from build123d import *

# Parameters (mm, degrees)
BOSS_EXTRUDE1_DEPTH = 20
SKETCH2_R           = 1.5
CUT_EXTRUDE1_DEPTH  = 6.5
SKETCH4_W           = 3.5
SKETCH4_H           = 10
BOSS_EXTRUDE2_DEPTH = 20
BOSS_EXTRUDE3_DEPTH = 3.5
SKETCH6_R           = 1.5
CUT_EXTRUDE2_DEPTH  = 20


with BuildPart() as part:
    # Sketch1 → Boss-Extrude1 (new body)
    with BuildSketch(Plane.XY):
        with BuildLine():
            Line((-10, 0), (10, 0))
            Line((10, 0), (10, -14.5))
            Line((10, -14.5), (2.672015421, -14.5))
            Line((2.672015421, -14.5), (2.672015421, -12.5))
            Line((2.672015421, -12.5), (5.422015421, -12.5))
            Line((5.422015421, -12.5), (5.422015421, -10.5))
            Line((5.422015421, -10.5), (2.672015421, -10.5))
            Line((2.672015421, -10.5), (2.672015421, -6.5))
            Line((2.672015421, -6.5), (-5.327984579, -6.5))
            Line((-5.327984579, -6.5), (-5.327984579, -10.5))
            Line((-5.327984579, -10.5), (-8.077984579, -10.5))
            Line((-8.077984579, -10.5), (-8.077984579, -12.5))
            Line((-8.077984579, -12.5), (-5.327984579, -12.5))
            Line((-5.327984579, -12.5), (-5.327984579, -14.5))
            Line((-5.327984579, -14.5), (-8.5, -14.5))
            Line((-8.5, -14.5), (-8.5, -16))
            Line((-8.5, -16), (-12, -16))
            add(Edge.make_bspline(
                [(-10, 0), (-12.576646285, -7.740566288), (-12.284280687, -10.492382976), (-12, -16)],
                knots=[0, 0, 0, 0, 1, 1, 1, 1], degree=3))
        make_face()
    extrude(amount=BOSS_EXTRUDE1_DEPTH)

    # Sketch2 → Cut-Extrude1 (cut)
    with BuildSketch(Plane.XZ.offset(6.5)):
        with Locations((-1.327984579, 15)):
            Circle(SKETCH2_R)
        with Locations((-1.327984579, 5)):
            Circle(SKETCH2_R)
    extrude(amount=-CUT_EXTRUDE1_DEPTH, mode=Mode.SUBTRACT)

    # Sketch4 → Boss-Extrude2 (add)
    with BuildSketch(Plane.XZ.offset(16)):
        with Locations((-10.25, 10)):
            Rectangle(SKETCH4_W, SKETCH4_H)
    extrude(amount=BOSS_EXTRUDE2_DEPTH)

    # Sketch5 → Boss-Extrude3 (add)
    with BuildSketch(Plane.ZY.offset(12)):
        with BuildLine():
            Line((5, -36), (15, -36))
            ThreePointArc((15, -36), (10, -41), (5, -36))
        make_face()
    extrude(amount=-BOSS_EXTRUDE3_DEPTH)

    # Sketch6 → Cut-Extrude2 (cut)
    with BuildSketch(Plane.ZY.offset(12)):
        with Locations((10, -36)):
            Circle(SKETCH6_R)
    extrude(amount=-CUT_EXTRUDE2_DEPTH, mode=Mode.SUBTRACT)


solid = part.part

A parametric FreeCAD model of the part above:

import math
import FreeCAD as App
import Part
import Sketcher
Q = App.Units.Quantity

doc = App.newDocument("Part")
body = doc.addObject("PartDesign::Body", "Body")

# Sketch on XY plane
sketch1 = doc.addObject("Sketcher::SketchObject", "Sketch")
body.addObject(sketch1)
sketch1.AttachmentSupport = (doc.XY_Plane, [""])
sketch1.MapMode = "FlatFace"
sketch1.addGeometry([
    Part.LineSegment(App.Vector(10, 0, 0), App.Vector(-10, 0, 0)),  # 0
    Part.BSplineCurve([App.Vector(-10, 0, 0), App.Vector(-12.576646, -7.740566, 0), App.Vector(-12.284281, -10.492383, 0), App.Vector(-12, -16, 0)], [4, 4], [0, 1], False, 3, [1, 1, 1, 1], False),  # 1
    Part.LineSegment(App.Vector(-12, -16, 0), App.Vector(-8.5, -16, 0)),  # 2
    Part.LineSegment(App.Vector(-8.5, -16, 0), App.Vector(-8.5, -14.5, 0)),  # 3
    Part.LineSegment(App.Vector(-8.5, -14.5, 0), App.Vector(-5.327985, -14.5, 0)),  # 4
    Part.LineSegment(App.Vector(-5.327985, -14.5, 0), App.Vector(-5.327985, -12.5, 0)),  # 5
    Part.LineSegment(App.Vector(-5.327985, -12.5, 0), App.Vector(-8.077985, -12.5, 0)),  # 6
    Part.LineSegment(App.Vector(-8.077985, -12.5, 0), App.Vector(-8.077985, -10.5, 0)),  # 7
    Part.LineSegment(App.Vector(-8.077985, -10.5, 0), App.Vector(-5.327985, -10.5, 0)),  # 8
    Part.LineSegment(App.Vector(-5.327985, -10.5, 0), App.Vector(-5.327985, -6.5, 0)),  # 9
    Part.LineSegment(App.Vector(-5.327985, -6.5, 0), App.Vector(2.672015, -6.5, 0)),  # 10
    Part.LineSegment(App.Vector(2.672015, -6.5, 0), App.Vector(2.672015, -10.5, 0)),  # 11
    Part.LineSegment(App.Vector(2.672015, -10.5, 0), App.Vector(5.422015, -10.5, 0)),  # 12
    Part.LineSegment(App.Vector(5.422015, -10.5, 0), App.Vector(5.422015, -12.5, 0)),  # 13
    Part.LineSegment(App.Vector(5.422015, -12.5, 0), App.Vector(2.672015, -12.5, 0)),  # 14
    Part.LineSegment(App.Vector(2.672015, -12.5, 0), App.Vector(2.672015, -14.5, 0)),  # 15
    Part.LineSegment(App.Vector(2.672015, -14.5, 0), App.Vector(10, -14.5, 0)),  # 16
    Part.LineSegment(App.Vector(10, -14.5, 0), App.Vector(10, 0, 0)),  # 17
], False)
sketch1.addConstraint([
    Sketcher.Constraint("Block", 1),
    Sketcher.Constraint("Coincident", 0, 2, 1, 1),
    Sketcher.Constraint("Coincident", 1, 2, 2, 1),
    Sketcher.Constraint("Coincident", 2, 2, 3, 1),
    Sketcher.Constraint("Coincident", 3, 2, 4, 1),
    Sketcher.Constraint("Coincident", 4, 2, 5, 1),
    Sketcher.Constraint("Coincident", 5, 2, 6, 1),
    Sketcher.Constraint("Coincident", 6, 2, 7, 1),
    Sketcher.Constraint("Coincident", 7, 2, 8, 1),
    Sketcher.Constraint("Coincident", 8, 2, 9, 1),
    Sketcher.Constraint("Coincident", 9, 2, 10, 1),
    Sketcher.Constraint("Coincident", 10, 2, 11, 1),
    Sketcher.Constraint("Coincident", 11, 2, 12, 1),
    Sketcher.Constraint("Coincident", 12, 2, 13, 1),
    Sketcher.Constraint("Coincident", 13, 2, 14, 1),
    Sketcher.Constraint("Coincident", 14, 2, 15, 1),
    Sketcher.Constraint("Coincident", 15, 2, 16, 1),
    Sketcher.Constraint("Coincident", 16, 2, 17, 1),
    Sketcher.Constraint("Coincident", 17, 2, 0, 1),
    Sketcher.Constraint("Horizontal", 0),
    Sketcher.Constraint("Horizontal", 2),
    Sketcher.Constraint("Vertical", 3),
    Sketcher.Constraint("Horizontal", 4),
    Sketcher.Constraint("Vertical", 5),
    Sketcher.Constraint("Horizontal", 6),
    Sketcher.Constraint("Vertical", 7),
    Sketcher.Constraint("Horizontal", 8),
    Sketcher.Constraint("Vertical", 9),
    Sketcher.Constraint("Horizontal", 10),
    Sketcher.Constraint("Vertical", 11),
    Sketcher.Constraint("Horizontal", 12),
    Sketcher.Constraint("Vertical", 13),
    Sketcher.Constraint("Horizontal", 14),
    Sketcher.Constraint("Vertical", 15),
    Sketcher.Constraint("Horizontal", 16),
    Sketcher.Constraint("Vertical", 17),
    Sketcher.Constraint("Horizontal", 8, 2, 11, 2),
    Sketcher.Constraint("Horizontal", 6, 2, 13, 2),
    Sketcher.Constraint("Horizontal", 4, 2, 15, 2),
    Sketcher.Constraint("Vertical", 5, 2, 8, 2),
    Sketcher.Constraint("Vertical", 11, 2, 14, 2),
    Sketcher.Constraint("Equal", 8, 12),
    Sketcher.Constraint("Equal", 5, 7),
    Sketcher.Constraint("DistanceX", 0, 2, 0, 1, Q("20 mm")),
    Sketcher.Constraint("DistanceX", 10, 1, 10, 2, Q("8 mm")),
    Sketcher.Constraint("DistanceY", 5, 1, 5, 2, Q("2 mm")),
    Sketcher.Constraint("DistanceY", 9, 1, 9, 2, Q("4 mm")),
    Sketcher.Constraint("DistanceX", 2, 1, 2, 2, Q("3.5 mm")),
    Sketcher.Constraint("DistanceY", 3, 1, 3, 2, Q("1.5 mm")),
    Sketcher.Constraint("DistanceX", 6, 2, 6, 1, Q("2.75 mm")),
    Sketcher.Constraint("DistanceX", 4, 1, 4, 2, Q("3.172015 mm")),
])
pad1 = doc.addObject("PartDesign::Pad", "Pad")
body.addObject(pad1)
pad1.Profile = sketch1
pad1.Length = 20

# Sketch on XZ plane
sketch2 = doc.addObject("Sketcher::SketchObject", "Sketch001")
body.addObject(sketch2)
sketch2.AttachmentSupport = (doc.XZ_Plane, [""])
sketch2.MapMode = "FlatFace"
sketch2.AttachmentOffset = App.Placement(App.Vector(0, 0, 6.5), App.Rotation())
sketch2.addGeometry([
    Part.Circle(App.Vector(-1.3, 15, 0), App.Vector(0, 0, 1), 1.5),
    Part.Circle(App.Vector(-1.3, 5, 0), App.Vector(0, 0, 1), 1.5),
], False)
sketch2.addConstraint([
    Sketcher.Constraint("Equal", 0, 1),
    Sketcher.Constraint("Vertical", 0, 3, 1, 3),
    Sketcher.Constraint("Diameter", 0, Q("3 mm")),
    Sketcher.Constraint("DistanceY", -1, 1, 0, 3, Q("15 mm")),
    Sketcher.Constraint("DistanceY", -1, 1, 1, 3, Q("5 mm")),
    Sketcher.Constraint("DistanceX", 0, 3, -1, 1, Q("1.327985 mm")),
])
pocket1 = doc.addObject("PartDesign::Pocket", "Pocket")
body.addObject(pocket1)
pocket1.Profile = sketch2
pocket1.Length = 6.5

# Sketch on XZ plane
sketch3 = doc.addObject("Sketcher::SketchObject", "Sketch002")
body.addObject(sketch3)
sketch3.AttachmentSupport = (doc.XZ_Plane, [""])
sketch3.MapMode = "FlatFace"
sketch3.AttachmentOffset = App.Placement(App.Vector(0, 0, 16), App.Rotation())
sketch3.addGeometry([
    Part.LineSegment(App.Vector(-12, 15, 0), App.Vector(-12, 5, 0)),
    Part.LineSegment(App.Vector(-12, 5, 0), App.Vector(-8.5, 5, 0)),
    Part.LineSegment(App.Vector(-8.5, 5, 0), App.Vector(-8.5, 15, 0)),
    Part.LineSegment(App.Vector(-8.5, 15, 0), App.Vector(-12, 15, 0)),
], False)
sketch3.addConstraint([
    Sketcher.Constraint("Coincident", 0, 2, 1, 1),
    Sketcher.Constraint("Coincident", 1, 2, 2, 1),
    Sketcher.Constraint("Coincident", 2, 2, 3, 1),
    Sketcher.Constraint("Coincident", 3, 2, 0, 1),
    Sketcher.Constraint("Vertical", 0),
    Sketcher.Constraint("Horizontal", 1),
    Sketcher.Constraint("Vertical", 2),
    Sketcher.Constraint("Horizontal", 3),
    Sketcher.Constraint("DistanceY", 0, 2, 0, 1, Q("10 mm")),
    Sketcher.Constraint("DistanceX", 1, 1, 1, 2, Q("3.5 mm")),
    Sketcher.Constraint("DistanceX", 0, 2, -1, 1, Q("12 mm")),
    Sketcher.Constraint("DistanceY", -1, 1, 0, 2, Q("5 mm")),
])
pad2 = doc.addObject("PartDesign::Pad", "Pad001")
body.addObject(pad2)
pad2.Profile = sketch3
pad2.Length = 20

# Sketch on YZ plane
sketch4 = doc.addObject("Sketcher::SketchObject", "Sketch003")
body.addObject(sketch4)
sketch4.AttachmentSupport = (doc.YZ_Plane, [""])
sketch4.MapMode = "FlatFace"
sketch4.AttachmentOffset = App.Placement(App.Vector(0, 0, -12), App.Rotation())
sketch4.addGeometry([
    Part.LineSegment(App.Vector(-36, 15, 0), App.Vector(-36, 5, 0)),
    Part.ArcOfCircle(Part.Circle(App.Vector(-36, 10, 0), App.Vector(0, 0, 1), 5), math.radians(90), math.radians(270)),
], False)
sketch4.addConstraint([
    Sketcher.Constraint("Coincident", 0, 1, 1, 1),
    Sketcher.Constraint("Coincident", 1, 2, 0, 2),
    Sketcher.Constraint("Vertical", 0),
    Sketcher.Constraint("Vertical", 1, 3, 0, 1),
    Sketcher.Constraint("Radius", 1, Q("5 mm")),
    Sketcher.Constraint("DistanceX", 1, 3, -1, 1, Q("36 mm")),
    Sketcher.Constraint("DistanceY", -1, 1, 1, 3, Q("10 mm")),
])
pad3 = doc.addObject("PartDesign::Pad", "Pad002")
body.addObject(pad3)
pad3.Profile = sketch4
pad3.Length = 3.5

# Sketch on YZ plane
sketch5 = doc.addObject("Sketcher::SketchObject", "Sketch004")
body.addObject(sketch5)
sketch5.AttachmentSupport = (doc.YZ_Plane, [""])
sketch5.MapMode = "FlatFace"
sketch5.AttachmentOffset = App.Placement(App.Vector(0, 0, -12), App.Rotation())
sketch5.addGeometry(Part.Circle(App.Vector(-36, 10, 0), App.Vector(0, 0, 1), 1.5), False)
sketch5.addConstraint([
    Sketcher.Constraint("Diameter", 0, Q("3 mm")),
    Sketcher.Constraint("DistanceX", 0, 3, -1, 1, Q("36 mm")),
    Sketcher.Constraint("DistanceY", -1, 1, 0, 3, Q("10 mm")),
])
pocket2 = doc.addObject("PartDesign::Pocket", "Pocket001")
body.addObject(pocket2)
pocket2.Profile = sketch5
pocket2.Length = 20
pocket2.Reversed = True

doc.recompute()
